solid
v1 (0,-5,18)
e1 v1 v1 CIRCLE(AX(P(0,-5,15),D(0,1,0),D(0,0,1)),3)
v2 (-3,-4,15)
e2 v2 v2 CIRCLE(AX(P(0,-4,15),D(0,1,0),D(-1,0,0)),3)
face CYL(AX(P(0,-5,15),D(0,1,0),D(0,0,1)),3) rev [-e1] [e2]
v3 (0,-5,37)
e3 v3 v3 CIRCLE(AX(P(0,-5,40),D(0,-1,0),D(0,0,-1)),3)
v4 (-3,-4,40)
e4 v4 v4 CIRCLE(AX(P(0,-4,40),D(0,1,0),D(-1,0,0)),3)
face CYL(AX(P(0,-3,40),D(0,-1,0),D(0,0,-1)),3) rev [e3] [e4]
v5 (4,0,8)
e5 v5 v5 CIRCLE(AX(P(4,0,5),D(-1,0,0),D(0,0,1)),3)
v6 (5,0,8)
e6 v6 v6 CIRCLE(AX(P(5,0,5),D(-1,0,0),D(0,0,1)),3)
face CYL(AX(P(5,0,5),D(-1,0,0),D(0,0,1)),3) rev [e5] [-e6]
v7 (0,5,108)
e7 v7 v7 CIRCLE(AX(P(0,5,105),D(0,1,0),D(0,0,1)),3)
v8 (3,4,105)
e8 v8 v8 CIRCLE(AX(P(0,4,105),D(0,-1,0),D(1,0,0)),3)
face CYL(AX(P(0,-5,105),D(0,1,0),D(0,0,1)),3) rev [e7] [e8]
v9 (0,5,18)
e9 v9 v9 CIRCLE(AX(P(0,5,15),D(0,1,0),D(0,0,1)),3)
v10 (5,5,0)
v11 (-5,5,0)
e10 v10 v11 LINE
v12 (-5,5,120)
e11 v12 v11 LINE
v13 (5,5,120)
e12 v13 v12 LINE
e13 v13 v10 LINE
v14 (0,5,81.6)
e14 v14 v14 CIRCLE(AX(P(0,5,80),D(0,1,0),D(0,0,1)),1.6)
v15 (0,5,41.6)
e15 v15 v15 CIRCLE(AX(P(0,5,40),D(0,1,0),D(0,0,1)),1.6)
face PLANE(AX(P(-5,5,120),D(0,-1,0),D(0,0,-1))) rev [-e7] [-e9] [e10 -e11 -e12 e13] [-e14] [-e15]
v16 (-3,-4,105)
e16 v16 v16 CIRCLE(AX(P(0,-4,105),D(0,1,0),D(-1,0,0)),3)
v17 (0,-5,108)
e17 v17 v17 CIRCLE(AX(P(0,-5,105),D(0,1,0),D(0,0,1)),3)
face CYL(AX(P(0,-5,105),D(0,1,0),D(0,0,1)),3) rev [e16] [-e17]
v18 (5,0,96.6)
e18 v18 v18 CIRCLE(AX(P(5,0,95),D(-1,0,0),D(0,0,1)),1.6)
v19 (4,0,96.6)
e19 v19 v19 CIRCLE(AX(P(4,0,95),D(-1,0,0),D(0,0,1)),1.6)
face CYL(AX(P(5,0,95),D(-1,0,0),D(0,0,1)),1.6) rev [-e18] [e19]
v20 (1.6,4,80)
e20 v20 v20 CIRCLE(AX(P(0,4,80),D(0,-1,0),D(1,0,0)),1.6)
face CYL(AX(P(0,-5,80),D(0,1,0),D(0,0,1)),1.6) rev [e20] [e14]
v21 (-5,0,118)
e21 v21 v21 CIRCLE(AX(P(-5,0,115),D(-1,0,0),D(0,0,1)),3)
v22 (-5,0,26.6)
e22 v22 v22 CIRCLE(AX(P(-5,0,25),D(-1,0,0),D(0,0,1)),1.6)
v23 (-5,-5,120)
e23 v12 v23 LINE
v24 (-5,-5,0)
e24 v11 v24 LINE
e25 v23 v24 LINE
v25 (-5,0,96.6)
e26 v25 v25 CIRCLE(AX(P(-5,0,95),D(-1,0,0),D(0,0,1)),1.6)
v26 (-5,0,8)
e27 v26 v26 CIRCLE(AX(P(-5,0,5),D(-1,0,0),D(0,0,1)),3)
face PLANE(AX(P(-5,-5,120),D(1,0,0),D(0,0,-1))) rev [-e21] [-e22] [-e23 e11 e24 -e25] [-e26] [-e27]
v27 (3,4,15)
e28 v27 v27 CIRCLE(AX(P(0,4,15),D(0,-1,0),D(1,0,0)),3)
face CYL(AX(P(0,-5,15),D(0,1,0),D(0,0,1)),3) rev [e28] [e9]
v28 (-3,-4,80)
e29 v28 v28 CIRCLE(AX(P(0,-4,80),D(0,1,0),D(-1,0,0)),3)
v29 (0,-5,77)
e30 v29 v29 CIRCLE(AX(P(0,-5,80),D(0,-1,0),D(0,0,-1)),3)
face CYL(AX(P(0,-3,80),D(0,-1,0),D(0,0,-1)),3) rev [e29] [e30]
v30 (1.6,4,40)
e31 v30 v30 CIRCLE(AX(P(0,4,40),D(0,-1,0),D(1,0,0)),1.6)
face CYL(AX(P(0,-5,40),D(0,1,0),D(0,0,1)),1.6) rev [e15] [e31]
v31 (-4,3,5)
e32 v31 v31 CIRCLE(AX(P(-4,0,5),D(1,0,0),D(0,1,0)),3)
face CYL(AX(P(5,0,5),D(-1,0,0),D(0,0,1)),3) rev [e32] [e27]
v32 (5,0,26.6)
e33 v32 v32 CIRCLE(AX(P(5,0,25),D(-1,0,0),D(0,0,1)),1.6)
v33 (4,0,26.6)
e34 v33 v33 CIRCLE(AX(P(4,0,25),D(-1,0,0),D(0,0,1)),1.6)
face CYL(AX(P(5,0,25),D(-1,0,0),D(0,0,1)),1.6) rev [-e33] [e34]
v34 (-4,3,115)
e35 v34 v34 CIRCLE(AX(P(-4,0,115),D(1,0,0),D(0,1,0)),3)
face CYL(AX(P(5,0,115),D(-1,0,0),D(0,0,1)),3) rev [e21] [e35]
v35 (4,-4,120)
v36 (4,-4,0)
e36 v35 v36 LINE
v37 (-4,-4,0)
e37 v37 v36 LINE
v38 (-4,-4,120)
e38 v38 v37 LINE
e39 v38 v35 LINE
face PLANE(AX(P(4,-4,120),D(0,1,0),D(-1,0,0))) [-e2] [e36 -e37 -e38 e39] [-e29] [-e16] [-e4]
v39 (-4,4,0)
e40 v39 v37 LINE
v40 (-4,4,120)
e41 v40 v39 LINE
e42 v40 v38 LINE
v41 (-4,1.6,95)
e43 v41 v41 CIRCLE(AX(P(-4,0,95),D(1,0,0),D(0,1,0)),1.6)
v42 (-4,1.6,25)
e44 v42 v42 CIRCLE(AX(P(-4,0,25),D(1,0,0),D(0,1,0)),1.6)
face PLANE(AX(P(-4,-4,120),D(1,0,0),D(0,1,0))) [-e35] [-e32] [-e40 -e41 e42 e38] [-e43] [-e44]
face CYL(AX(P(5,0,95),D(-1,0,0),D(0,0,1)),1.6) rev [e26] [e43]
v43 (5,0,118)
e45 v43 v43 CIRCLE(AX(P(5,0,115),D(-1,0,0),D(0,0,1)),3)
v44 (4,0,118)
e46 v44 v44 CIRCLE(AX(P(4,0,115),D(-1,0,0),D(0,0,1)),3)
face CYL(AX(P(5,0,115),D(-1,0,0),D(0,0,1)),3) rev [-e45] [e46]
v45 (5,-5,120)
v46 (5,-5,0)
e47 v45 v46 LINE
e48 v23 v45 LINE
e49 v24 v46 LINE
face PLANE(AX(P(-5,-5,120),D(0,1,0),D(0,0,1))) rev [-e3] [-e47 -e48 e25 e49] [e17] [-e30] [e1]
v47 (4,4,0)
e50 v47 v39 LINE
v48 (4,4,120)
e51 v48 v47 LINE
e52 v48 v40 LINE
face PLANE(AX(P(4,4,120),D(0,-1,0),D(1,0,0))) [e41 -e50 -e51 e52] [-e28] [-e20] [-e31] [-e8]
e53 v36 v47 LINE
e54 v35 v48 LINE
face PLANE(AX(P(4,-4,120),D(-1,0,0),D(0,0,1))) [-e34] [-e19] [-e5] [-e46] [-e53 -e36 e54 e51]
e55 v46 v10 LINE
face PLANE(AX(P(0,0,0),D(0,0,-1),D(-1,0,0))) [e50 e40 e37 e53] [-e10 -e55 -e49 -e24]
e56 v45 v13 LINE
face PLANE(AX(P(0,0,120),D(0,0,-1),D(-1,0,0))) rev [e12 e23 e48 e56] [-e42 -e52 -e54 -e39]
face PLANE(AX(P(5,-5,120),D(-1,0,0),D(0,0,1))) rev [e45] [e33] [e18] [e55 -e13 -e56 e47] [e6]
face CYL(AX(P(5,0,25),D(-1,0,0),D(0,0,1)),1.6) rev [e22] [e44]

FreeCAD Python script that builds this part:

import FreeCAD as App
import Part
import Sketcher

V = App.Vector
Q = App.Units.Quantity


def add_polygon(sketch, points):
    """Adds a closed chain of lines whose ends are joined by coincident constraints."""
    first, n = sketch.GeometryCount, len(points)
    for a, b in zip(points, points[1:] + points[:1]):
        sketch.addGeometry(Part.LineSegment(App.Vector(*a, 0), App.Vector(*b, 0)), False)
    for i in range(n):
        sketch.addConstraint(Sketcher.Constraint("Coincident", first + i, 2, first + (i + 1) % n, 1))

doc = App.newDocument("Part")
params = doc.addObject("Spreadsheet::Sheet", "Params")
for row, (alias, value) in enumerate([
    ("sketch1_width", "10 mm"),
    ("sketch1_width2", "8 mm"),
    ("pad1_length", "120 mm"),
    ("sketch2_diameter", "6 mm"),
    ("sketch3_diameter", "6 mm"),
    ("pocket2_length", "10 mm"),
    ("sketch4_diameter", "3.2 mm"),
    ("pocket3_length", "10 mm"),
    ("sketch5_diameter", "3.2 mm"),
    ("sketch6_diameter", "6 mm"),
    ("pocket5_length", "2 mm"),
], start=1):
    params.set(f"A{row}", alias)
    params.set(f"B{row}", "=" + value)
    params.setAlias(f"B{row}", alias)

body = doc.addObject("PartDesign::Body", "Body")

sketch1 = body.newObject("Sketcher::SketchObject", "Sketch")
sketch1.AttachmentSupport = (doc.getObject("XY_Plane"), [""])
sketch1.MapMode = "FlatFace"
add_polygon(sketch1, [(-5, 5), (-5, -5), (5, -5), (5, 5)])
add_polygon(sketch1, [(4, -4), (-4, -4), (-4, 4), (4, 4)])
sketch1.addConstraint(Sketcher.Constraint("Vertical", 0))
sketch1.addConstraint(Sketcher.Constraint("Horizontal", 1))
sketch1.addConstraint(Sketcher.Constraint("Vertical", 2))
sketch1.addConstraint(Sketcher.Constraint("Horizontal", 3))
sketch1.addConstraint(Sketcher.Constraint("Horizontal", 4))
sketch1.addConstraint(Sketcher.Constraint("Vertical", 5))
sketch1.addConstraint(Sketcher.Constraint("Horizontal", 6))
sketch1.addConstraint(Sketcher.Constraint("Vertical", 7))
sketch1.addConstraint(Sketcher.Constraint("Symmetric", 0, 2, 2, 2, -1, 1))
sketch1.addConstraint(Sketcher.Constraint("Symmetric", 4, 2, 6, 2, -1, 1))
sketch1.addConstraint(Sketcher.Constraint("Equal", 3, 0))
sketch1.addConstraint(Sketcher.Constraint("Equal", 6, 5))
sketch1.addConstraint(Sketcher.Constraint("DistanceX", 1, 1, 1, 2, Q("10 mm")))
sketch1.addConstraint(Sketcher.Constraint("DistanceX", 4, 2, 4, 1, Q("8 mm")))
sketch1.setExpression("Constraints[20]", "Params.sketch1_width")
sketch1.setExpression("Constraints[21]", "Params.sketch1_width2")
pad1 = body.newObject("PartDesign::Pad", "Pad")
pad1.Profile = sketch1
pad1.setExpression("Length", "Params.pad1_length")

sketch2 = body.newObject("Sketcher::SketchObject", "Sketch001")
sketch2.AttachmentSupport = (doc.getObject("YZ_Plane"), [""])
sketch2.MapMode = "FlatFace"
sketch2.AttachmentOffset = App.Placement(V(0, 0, -5), App.Rotation())
sketch2.addGeometry(Part.Circle(V(0, 5, 0), V(0, 0, 1), 3), False)
sketch2.addGeometry(Part.Circle(V(0, 115, 0), V(0, 0, 1), 3), False)
sketch2.addConstraint(Sketcher.Constraint("Equal", 0, 1))
sketch2.addConstraint(Sketcher.Constraint("PointOnObject", 0, 3, -2))
sketch2.addConstraint(Sketcher.Constraint("PointOnObject", 1, 3, -2))
sketch2.addConstraint(Sketcher.Constraint("Diameter", 0, Q("6 mm")))
sketch2.addConstraint(Sketcher.Constraint("DistanceY", -1, 1, 0, 3, Q("5 mm")))
sketch2.addConstraint(Sketcher.Constraint("DistanceY", -1, 1, 1, 3, Q("115 mm")))
sketch2.setExpression("Constraints[3]", "Params.sketch2_diameter")
pocket1 = body.newObject("PartDesign::Pocket", "Pocket")
pocket1.Profile = sketch2
pocket1.Type = "ThroughAll"
pocket1.Reversed = True

sketch3 = body.newObject("Sketcher::SketchObject", "Sketch002")
sketch3.AttachmentSupport = (doc.getObject("XZ_Plane"), [""])
sketch3.MapMode = "FlatFace"
sketch3.AttachmentOffset = App.Placement(V(0, 0, -5), App.Rotation())
sketch3.addGeometry(Part.Circle(V(0, 105, 0), V(0, 0, 1), 3), False)
sketch3.addGeometry(Part.Circle(V(0, 15, 0), V(0, 0, 1), 3), False)
sketch3.addConstraint(Sketcher.Constraint("Equal", 0, 1))
sketch3.addConstraint(Sketcher.Constraint("PointOnObject", 0, 3, -2))
sketch3.addConstraint(Sketcher.Constraint("PointOnObject", 1, 3, -2))
sketch3.addConstraint(Sketcher.Constraint("Diameter", 0, Q("6 mm")))
sketch3.addConstraint(Sketcher.Constraint("DistanceY", -1, 1, 0, 3, Q("105 mm")))
sketch3.addConstraint(Sketcher.Constraint("DistanceY", -1, 1, 1, 3, Q("15 mm")))
sketch3.setExpression("Constraints[3]", "Params.sketch3_diameter")
pocket2 = body.newObject("PartDesign::Pocket", "Pocket001")
pocket2.Profile = sketch3
pocket2.setExpression("Length", "Params.pocket2_length")
pocket2.Reversed = True

sketch4 = body.newObject("Sketcher::SketchObject", "Sketch003")
sketch4.AttachmentSupport = (doc.getObject("XZ_Plane"), [""])
sketch4.MapMode = "FlatFace"
sketch4.AttachmentOffset = App.Placement(V(0, 0, -5), App.Rotation())
sketch4.addGeometry(Part.Circle(V(0, 40, 0), V(0, 0, 1), 1.6), False)
sketch4.addGeometry(Part.Circle(V(0, 80, 0), V(0, 0, 1), 1.6), False)
sketch4.addConstraint(Sketcher.Constraint("Equal", 0, 1))
sketch4.addConstraint(Sketcher.Constraint("PointOnObject", 0, 3, -2))
sketch4.addConstraint(Sketcher.Constraint("PointOnObject", 1, 3, -2))
sketch4.addConstraint(Sketcher.Constraint("Diameter", 0, Q("3.2 mm")))
sketch4.addConstraint(Sketcher.Constraint("DistanceY", -1, 1, 0, 3, Q("40 mm")))
sketch4.addConstraint(Sketcher.Constraint("DistanceY", -1, 1, 1, 3, Q("80 mm")))
sketch4.setExpression("Constraints[3]", "Params.sketch4_diameter")
pocket3 = body.newObject("PartDesign::Pocket", "Pocket002")
pocket3.Profile = sketch4
pocket3.setExpression("Length", "Params.pocket3_length")
pocket3.Reversed = True

sketch5 = body.newObject("Sketcher::SketchObject", "Sketch004")
sketch5.AttachmentSupport = (doc.getObject("YZ_Plane"), [""])
sketch5.MapMode = "FlatFace"
sketch5.AttachmentOffset = App.Placement(V(0, 0, -5), App.Rotation())
sketch5.addGeometry(Part.Circle(V(0, 25, 0), V(0, 0, 1), 1.6), False)
sketch5.addGeometry(Part.Circle(V(0, 95, 0), V(0, 0, 1), 1.6), False)
sketch5.addConstraint(Sketcher.Constraint("Equal", 0, 1))
sketch5.addConstraint(Sketcher.Constraint("PointOnObject", 0, 3, -2))
sketch5.addConstraint(Sketcher.Constraint("PointOnObject", 1, 3, -2))
sketch5.addConstraint(Sketcher.Constraint("Diameter", 0, Q("3.2 mm")))
sketch5.addConstraint(Sketcher.Constraint("DistanceY", -1, 1, 0, 3, Q("25 mm")))
sketch5.addConstraint(Sketcher.Constraint("DistanceY", -1, 1, 1, 3, Q("95 mm")))
sketch5.setExpression("Constraints[3]", "Params.sketch5_diameter")
pocket4 = body.newObject("PartDesign::Pocket", "Pocket003")
pocket4.Profile = sketch5
pocket4.Type = "ThroughAll"
pocket4.Reversed = True

sketch6 = body.newObject("Sketcher::SketchObject", "Sketch005")
sketch6.AttachmentSupport = (doc.getObject("XZ_Plane"), [""])
sketch6.MapMode = "FlatFace"
sketch6.AttachmentOffset = App.Placement(V(0, 0, 5), App.Rotation())
sketch6.addGeometry(Part.Circle(V(0, 40, 0), V(0, 0, 1), 3), False)
sketch6.addGeometry(Part.Circle(V(0, 80, 0), V(0, 0, 1), 3), False)
sketch6.addConstraint(Sketcher.Constraint("Equal", 0, 1))
sketch6.addConstraint(Sketcher.Constraint("PointOnObject", 0, 3, -2))
sketch6.addConstraint(Sketcher.Constraint("PointOnObject", 1, 3, -2))
sketch6.addConstraint(Sketcher.Constraint("Diameter", 0, Q("6 mm")))
sketch6.addConstraint(Sketcher.Constraint("DistanceY", -1, 1, 0, 3, Q("40 mm")))
sketch6.addConstraint(Sketcher.Constraint("DistanceY", -1, 1, 1, 3, Q("80 mm")))
sketch6.setExpression("Constraints[3]", "Params.sketch6_diameter")
pocket5 = body.newObject("PartDesign::Pocket", "Pocket004")
pocket5.Profile = sketch6
pocket5.setExpression("Length", "Params.pocket5_length")

doc.recompute()
